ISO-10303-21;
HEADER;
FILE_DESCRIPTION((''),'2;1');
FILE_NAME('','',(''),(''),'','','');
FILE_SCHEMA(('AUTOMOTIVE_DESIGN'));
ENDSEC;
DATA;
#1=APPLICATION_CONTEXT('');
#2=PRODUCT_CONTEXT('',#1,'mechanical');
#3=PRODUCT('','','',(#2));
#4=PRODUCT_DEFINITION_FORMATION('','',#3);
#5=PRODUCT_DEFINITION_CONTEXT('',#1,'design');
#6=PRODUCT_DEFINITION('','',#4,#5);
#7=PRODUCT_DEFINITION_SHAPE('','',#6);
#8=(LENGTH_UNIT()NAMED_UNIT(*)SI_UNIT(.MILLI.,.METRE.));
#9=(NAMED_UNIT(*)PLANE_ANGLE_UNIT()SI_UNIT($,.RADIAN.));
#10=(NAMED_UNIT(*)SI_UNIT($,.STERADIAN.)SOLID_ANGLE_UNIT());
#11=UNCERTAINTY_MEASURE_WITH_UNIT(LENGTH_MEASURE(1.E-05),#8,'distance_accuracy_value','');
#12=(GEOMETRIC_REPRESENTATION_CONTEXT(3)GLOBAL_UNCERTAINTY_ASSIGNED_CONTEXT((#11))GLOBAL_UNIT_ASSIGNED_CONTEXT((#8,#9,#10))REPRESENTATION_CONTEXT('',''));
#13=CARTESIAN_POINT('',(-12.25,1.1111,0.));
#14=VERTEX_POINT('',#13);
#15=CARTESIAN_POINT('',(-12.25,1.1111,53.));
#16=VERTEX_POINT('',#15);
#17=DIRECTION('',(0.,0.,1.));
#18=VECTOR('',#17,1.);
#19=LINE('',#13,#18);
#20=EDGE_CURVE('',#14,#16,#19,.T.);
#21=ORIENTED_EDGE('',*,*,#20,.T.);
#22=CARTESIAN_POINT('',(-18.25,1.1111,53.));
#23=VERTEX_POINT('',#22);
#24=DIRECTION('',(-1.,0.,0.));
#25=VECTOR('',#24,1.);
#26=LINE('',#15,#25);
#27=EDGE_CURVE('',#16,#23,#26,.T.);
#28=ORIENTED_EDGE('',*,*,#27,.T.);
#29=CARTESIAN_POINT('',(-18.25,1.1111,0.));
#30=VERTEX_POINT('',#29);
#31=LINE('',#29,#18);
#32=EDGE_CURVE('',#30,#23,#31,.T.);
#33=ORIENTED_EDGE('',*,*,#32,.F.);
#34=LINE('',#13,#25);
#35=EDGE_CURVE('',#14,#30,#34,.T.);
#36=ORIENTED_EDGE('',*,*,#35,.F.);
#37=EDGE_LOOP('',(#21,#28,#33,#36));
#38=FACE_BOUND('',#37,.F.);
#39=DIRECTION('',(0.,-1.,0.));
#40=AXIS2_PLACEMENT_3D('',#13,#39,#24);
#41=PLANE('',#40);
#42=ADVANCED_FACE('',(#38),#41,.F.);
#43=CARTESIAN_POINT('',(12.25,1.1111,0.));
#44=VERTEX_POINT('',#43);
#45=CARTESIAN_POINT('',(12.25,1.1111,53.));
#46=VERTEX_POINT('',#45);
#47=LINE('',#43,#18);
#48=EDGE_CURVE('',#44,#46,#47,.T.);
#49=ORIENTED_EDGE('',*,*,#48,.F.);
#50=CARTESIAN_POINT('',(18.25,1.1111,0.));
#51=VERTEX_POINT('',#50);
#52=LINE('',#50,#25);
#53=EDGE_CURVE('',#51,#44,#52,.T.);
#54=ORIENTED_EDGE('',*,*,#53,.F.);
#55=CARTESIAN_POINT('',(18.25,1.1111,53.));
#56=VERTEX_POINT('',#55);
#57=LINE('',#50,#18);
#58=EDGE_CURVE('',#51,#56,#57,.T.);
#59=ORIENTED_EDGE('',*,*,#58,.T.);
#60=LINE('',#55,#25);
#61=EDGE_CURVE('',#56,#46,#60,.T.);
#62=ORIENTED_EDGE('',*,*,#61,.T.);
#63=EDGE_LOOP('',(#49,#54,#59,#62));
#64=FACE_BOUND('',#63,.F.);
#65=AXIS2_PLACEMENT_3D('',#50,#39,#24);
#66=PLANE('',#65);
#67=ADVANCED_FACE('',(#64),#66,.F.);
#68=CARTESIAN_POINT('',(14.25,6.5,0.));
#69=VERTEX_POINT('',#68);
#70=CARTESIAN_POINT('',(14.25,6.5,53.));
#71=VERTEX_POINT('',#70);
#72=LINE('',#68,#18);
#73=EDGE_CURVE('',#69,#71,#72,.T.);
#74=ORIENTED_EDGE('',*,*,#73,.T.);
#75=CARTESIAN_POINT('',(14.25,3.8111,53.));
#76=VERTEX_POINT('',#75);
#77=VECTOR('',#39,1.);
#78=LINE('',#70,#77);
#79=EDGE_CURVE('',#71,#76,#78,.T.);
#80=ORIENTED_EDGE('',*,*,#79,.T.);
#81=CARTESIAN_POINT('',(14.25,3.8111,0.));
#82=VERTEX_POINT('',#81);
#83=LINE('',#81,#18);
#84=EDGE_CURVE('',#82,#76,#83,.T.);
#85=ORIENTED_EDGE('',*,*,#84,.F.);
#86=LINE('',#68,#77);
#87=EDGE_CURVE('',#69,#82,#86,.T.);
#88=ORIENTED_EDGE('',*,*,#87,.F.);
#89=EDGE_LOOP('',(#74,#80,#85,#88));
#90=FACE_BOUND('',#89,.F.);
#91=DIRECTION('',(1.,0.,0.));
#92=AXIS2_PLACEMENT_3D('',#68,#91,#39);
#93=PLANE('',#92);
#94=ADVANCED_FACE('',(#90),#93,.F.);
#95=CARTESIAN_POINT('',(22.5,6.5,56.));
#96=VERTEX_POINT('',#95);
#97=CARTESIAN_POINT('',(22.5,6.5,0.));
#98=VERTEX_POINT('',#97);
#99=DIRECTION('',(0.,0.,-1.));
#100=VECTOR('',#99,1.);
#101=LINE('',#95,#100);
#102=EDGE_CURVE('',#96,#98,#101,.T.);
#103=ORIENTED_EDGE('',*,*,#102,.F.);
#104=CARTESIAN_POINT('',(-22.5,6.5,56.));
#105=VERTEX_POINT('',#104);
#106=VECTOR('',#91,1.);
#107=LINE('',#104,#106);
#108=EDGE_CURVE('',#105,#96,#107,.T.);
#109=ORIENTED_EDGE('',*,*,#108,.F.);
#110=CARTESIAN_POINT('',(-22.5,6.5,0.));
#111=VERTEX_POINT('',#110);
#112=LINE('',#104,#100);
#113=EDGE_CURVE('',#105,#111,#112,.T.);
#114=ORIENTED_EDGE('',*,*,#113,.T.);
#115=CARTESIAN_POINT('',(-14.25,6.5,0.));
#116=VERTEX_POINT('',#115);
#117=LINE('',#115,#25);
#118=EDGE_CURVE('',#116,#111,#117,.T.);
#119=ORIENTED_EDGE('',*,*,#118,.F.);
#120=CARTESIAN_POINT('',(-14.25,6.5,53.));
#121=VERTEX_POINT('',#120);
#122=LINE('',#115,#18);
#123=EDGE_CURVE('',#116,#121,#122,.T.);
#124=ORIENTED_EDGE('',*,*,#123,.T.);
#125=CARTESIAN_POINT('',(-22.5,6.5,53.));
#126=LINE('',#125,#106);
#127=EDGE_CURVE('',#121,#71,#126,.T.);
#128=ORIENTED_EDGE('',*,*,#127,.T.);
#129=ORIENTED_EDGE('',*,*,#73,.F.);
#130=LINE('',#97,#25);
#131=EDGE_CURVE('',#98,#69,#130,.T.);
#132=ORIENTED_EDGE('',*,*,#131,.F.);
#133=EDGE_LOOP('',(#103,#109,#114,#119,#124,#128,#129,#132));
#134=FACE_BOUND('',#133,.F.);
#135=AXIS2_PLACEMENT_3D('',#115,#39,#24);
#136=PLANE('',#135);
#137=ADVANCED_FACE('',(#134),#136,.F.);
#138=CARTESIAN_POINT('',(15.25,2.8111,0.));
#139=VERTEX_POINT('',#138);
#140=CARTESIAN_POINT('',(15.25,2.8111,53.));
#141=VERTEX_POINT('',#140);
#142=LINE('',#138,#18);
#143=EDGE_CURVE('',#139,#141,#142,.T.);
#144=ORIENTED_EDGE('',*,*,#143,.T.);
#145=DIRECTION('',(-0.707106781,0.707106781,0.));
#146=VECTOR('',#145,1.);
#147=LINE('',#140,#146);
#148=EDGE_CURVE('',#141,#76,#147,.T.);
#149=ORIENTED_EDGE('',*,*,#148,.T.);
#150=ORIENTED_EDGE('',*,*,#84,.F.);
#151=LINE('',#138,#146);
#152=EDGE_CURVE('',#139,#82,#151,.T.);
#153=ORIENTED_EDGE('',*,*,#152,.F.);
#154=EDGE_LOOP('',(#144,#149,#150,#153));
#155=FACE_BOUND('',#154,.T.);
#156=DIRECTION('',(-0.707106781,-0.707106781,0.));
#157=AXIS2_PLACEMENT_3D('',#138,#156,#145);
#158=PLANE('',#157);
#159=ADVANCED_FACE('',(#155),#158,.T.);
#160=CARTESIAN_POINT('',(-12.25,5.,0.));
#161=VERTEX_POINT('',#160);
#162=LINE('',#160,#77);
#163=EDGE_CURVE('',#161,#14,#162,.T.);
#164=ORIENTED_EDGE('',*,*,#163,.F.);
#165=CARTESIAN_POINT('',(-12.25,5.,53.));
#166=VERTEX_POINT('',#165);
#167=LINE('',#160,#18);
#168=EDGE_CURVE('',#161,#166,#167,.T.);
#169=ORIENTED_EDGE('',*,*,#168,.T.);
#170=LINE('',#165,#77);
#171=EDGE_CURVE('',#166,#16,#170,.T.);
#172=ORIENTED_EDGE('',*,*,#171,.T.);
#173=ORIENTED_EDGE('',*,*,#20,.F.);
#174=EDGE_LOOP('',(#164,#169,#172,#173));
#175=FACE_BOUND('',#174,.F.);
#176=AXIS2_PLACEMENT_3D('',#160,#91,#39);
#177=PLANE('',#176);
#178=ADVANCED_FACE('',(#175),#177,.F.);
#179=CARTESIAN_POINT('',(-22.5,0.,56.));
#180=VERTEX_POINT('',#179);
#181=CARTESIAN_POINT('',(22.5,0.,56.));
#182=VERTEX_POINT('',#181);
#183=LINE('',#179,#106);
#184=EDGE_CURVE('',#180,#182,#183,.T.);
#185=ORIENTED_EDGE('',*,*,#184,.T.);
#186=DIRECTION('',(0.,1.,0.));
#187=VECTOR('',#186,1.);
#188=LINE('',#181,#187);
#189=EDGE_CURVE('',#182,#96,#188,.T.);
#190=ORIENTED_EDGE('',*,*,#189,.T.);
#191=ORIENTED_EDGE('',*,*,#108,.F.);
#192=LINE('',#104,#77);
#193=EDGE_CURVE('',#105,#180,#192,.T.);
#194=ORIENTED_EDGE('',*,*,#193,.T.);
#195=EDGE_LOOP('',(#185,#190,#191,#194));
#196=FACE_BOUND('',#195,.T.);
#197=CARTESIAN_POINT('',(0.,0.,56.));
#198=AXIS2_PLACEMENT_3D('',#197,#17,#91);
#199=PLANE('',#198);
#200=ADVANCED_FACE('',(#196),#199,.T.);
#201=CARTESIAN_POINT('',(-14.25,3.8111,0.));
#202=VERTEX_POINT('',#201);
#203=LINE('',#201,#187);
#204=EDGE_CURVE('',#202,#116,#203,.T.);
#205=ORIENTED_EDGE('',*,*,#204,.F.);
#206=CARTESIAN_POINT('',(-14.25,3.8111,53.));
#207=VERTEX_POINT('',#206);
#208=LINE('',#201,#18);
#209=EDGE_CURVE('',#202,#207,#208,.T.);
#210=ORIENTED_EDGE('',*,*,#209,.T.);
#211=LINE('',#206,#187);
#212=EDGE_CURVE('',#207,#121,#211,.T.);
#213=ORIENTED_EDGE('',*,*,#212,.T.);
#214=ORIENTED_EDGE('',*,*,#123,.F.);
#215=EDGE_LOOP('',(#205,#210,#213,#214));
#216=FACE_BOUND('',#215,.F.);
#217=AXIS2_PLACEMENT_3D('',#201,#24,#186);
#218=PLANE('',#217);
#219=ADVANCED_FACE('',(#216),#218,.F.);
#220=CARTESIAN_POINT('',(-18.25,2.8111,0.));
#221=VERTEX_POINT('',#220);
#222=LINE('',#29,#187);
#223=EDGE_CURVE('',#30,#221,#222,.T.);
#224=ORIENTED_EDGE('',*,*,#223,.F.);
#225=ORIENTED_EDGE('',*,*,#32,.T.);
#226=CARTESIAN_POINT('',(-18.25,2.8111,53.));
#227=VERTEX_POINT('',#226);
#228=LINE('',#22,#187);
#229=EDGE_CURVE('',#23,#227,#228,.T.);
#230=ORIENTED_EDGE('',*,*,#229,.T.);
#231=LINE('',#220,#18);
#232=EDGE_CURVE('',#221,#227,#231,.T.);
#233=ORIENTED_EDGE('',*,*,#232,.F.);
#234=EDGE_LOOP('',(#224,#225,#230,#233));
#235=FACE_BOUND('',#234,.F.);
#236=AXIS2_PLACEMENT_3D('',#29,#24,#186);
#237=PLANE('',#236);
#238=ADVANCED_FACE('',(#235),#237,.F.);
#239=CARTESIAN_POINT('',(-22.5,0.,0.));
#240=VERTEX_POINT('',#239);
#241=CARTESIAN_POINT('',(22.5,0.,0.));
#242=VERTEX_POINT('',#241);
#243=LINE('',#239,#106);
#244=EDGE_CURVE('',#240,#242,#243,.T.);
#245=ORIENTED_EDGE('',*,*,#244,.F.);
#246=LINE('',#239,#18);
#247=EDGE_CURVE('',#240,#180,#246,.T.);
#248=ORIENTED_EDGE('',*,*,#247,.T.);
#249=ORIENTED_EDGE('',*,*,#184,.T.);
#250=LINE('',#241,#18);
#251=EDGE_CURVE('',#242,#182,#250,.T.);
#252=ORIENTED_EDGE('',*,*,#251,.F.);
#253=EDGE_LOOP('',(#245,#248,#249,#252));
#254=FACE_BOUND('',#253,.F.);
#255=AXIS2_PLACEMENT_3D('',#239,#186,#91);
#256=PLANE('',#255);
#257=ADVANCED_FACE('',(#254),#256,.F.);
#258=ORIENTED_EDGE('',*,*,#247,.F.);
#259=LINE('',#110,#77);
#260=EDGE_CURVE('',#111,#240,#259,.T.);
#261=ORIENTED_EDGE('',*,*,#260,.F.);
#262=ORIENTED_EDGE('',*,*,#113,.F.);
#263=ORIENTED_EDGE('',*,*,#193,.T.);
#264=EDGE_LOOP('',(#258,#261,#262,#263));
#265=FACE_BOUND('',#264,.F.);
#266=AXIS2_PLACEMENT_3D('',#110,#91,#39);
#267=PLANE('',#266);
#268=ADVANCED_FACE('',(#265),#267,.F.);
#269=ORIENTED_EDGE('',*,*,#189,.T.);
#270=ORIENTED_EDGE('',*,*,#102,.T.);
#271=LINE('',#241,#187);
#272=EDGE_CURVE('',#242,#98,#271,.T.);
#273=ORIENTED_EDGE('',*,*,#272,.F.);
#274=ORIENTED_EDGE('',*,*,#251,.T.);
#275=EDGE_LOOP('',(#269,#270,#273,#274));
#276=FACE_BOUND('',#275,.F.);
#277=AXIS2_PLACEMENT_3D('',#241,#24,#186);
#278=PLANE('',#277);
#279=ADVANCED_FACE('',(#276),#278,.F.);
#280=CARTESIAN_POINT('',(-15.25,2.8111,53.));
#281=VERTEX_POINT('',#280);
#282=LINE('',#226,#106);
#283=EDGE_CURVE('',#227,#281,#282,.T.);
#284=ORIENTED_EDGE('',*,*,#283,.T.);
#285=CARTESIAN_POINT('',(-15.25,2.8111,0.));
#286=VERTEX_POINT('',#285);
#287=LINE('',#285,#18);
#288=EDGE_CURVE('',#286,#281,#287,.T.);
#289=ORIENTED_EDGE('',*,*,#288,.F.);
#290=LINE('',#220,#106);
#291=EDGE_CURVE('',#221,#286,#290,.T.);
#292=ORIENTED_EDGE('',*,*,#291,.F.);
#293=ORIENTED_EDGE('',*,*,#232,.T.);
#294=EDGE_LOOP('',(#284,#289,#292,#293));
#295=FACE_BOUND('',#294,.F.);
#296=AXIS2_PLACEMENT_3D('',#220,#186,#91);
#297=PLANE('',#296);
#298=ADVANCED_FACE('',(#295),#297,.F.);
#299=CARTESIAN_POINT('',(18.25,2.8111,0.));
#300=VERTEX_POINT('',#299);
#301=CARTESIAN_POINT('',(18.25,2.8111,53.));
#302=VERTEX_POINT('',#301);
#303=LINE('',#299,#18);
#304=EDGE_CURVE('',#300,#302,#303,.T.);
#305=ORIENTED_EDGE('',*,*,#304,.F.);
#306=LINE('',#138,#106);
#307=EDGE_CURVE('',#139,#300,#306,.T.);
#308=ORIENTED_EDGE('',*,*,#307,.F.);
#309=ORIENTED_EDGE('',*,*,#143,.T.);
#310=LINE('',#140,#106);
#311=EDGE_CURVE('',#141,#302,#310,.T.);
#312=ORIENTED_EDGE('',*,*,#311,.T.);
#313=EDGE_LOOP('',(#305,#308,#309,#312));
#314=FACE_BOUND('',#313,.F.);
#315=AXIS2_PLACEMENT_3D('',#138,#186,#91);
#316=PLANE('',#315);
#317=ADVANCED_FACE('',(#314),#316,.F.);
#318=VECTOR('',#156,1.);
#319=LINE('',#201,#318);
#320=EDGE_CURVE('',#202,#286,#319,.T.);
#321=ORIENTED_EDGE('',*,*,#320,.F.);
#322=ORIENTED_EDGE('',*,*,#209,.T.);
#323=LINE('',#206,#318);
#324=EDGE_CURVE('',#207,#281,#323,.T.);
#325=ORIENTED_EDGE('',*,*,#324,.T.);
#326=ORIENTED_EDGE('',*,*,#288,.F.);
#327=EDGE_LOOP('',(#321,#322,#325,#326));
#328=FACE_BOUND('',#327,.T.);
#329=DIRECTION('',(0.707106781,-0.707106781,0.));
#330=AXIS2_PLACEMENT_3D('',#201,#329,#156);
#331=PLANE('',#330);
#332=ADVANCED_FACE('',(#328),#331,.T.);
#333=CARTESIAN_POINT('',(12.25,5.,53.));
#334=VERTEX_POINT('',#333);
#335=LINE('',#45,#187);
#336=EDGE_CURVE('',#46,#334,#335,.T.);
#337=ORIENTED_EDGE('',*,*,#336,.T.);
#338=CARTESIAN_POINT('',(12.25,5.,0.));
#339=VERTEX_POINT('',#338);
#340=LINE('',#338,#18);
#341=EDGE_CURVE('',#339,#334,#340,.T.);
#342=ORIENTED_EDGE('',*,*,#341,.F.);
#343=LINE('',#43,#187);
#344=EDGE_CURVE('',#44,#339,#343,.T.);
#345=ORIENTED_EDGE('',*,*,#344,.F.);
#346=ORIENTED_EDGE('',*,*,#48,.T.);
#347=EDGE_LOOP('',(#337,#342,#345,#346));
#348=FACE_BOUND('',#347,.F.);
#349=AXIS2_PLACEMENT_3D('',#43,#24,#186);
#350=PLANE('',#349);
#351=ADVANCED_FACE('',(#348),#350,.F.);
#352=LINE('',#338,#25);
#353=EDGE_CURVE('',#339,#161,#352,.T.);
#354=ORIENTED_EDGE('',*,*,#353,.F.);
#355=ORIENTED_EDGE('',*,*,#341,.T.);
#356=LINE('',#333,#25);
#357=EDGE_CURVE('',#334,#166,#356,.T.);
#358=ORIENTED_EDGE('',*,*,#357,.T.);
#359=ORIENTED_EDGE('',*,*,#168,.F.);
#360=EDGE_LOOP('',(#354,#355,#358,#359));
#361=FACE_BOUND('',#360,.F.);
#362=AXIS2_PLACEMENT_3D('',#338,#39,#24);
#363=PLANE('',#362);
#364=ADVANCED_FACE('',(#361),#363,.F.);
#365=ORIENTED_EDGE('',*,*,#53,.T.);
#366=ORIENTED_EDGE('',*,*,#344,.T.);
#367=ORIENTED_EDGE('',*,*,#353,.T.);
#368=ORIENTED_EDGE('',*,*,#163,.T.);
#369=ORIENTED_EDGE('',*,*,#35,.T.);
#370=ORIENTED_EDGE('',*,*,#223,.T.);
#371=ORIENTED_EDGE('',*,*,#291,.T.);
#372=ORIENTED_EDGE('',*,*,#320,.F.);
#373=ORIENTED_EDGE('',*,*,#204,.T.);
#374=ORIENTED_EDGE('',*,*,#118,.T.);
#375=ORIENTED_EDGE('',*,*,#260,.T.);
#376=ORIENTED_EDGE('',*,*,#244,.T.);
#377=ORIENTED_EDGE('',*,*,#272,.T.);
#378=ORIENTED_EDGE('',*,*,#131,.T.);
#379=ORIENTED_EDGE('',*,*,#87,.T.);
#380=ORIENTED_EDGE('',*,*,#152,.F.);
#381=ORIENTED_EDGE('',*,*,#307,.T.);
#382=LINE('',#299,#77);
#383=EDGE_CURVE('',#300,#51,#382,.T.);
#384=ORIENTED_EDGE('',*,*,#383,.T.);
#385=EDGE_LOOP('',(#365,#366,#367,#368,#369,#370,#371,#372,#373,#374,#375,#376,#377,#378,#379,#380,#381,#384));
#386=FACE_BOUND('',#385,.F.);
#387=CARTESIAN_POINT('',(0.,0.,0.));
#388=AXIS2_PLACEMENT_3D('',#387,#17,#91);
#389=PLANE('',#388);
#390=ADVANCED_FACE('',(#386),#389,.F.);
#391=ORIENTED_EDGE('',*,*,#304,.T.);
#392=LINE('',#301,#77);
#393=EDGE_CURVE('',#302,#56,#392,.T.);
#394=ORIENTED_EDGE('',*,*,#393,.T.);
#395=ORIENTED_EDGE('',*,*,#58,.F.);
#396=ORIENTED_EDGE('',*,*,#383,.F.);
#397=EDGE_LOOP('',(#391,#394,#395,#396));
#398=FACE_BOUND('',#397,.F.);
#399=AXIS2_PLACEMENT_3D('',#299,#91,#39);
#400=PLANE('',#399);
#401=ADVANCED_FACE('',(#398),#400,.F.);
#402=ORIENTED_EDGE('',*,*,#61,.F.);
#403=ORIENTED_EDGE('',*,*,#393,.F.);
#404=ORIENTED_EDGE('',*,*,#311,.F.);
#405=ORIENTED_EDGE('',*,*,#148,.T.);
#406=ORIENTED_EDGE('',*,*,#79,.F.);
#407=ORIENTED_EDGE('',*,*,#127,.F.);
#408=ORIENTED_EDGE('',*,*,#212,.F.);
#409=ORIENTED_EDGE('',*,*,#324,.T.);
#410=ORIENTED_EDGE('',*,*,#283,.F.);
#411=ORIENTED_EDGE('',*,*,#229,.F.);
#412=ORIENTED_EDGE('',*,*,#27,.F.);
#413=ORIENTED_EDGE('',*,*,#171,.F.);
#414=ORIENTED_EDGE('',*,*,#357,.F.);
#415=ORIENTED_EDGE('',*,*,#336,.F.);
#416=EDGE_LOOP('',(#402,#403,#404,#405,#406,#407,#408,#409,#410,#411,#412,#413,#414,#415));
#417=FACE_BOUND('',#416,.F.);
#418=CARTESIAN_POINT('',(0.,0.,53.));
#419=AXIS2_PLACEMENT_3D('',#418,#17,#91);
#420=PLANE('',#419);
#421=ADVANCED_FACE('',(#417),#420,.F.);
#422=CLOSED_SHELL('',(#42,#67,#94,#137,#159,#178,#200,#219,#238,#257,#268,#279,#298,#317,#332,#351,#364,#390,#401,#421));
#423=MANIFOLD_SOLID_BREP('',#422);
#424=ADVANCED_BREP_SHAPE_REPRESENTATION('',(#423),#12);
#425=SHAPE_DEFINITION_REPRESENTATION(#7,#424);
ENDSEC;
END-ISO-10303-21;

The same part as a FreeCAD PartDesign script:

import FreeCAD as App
import Part
import Sketcher


def add_polygon(sketch, points):
    """Adds a closed chain of lines whose ends are joined by coincident constraints."""
    first, n = sketch.GeometryCount, len(points)
    for a, b in zip(points, points[1:] + points[:1]):
        sketch.addGeometry(Part.LineSegment(App.Vector(*a, 0), App.Vector(*b, 0)), False)
    for i in range(n):
        sketch.addConstraint(Sketcher.Constraint("Coincident", first + i, 2, first + (i + 1) % n, 1))

doc = App.newDocument("Part")
params = doc.addObject("Spreadsheet::Sheet", "Params")
for row, (alias, value) in enumerate([
    ("sketch1_width", "45 mm"),
    ("sketch1_width2", "6 mm"),
    ("sketch1_height", "6.5 mm"),
    ("sketch1_height2", "1.7 mm"),
    ("pad1_length", "53 mm"),
    ("sketch2_width", "45 mm"),
    ("sketch2_height", "6.5 mm"),
    ("pad2_length", "3 mm"),
], start=1):
    params.set(f"A{row}", alias)
    params.set(f"B{row}", "=" + value)
    params.setAlias(f"B{row}", alias)

body = doc.addObject("PartDesign::Body", "Body")

# Sketch on XY plane
sketch1 = body.newObject("Sketcher::SketchObject", "Sketch")
sketch1.AttachmentSupport = (doc.getObject("XY_Plane"), [""])
sketch1.MapMode = "FlatFace"
add_polygon(sketch1, [(-22.5, 6.5), (-22.5, 0), (22.5, 0), (22.5, 6.5), (14.2, 6.5), (14.2, 3.8), (15.2, 2.8), (18.2, 2.8), (18.2, 1.1), (12.2, 1.1), (12.2, 5), (-12.2, 5), (-12.2, 1.1), (-18.2, 1.1), (-18.2, 2.8), (-15.2, 2.8), (-14.2, 3.8), (-14.2, 6.5)])  # lines 0-17
sketch1.addConstraint([
    Sketcher.Constraint("Vertical", 0),
    Sketcher.Constraint("Horizontal", 1),
    Sketcher.Constraint("Vertical", 2),
    Sketcher.Constraint("Horizontal", 3),
    Sketcher.Constraint("Vertical", 4),
    Sketcher.Constraint("Horizontal", 6),
    Sketcher.Constraint("Vertical", 7),
    Sketcher.Constraint("Horizontal", 8),
    Sketcher.Constraint("Vertical", 9),
    Sketcher.Constraint("Horizontal", 10),
    Sketcher.Constraint("Vertical", 11),
    Sketcher.Constraint("Horizontal", 12),
    Sketcher.Constraint("Vertical", 13),
    Sketcher.Constraint("Horizontal", 14),
    Sketcher.Constraint("Vertical", 16),
    Sketcher.Constraint("Horizontal", 17),
    Sketcher.Constraint("Symmetric", 0, 2, 1, 2, -1, 1),
    Sketcher.Constraint("Symmetric", 8, 2, 11, 2, -2),
    Sketcher.Constraint("Symmetric", 6, 2, 13, 2, -2),
    Sketcher.Constraint("Symmetric", 4, 2, 15, 2, -2),
    Sketcher.Constraint("Perpendicular", 5, 15),
    Sketcher.Constraint("Horizontal", 3, 2, 16, 2),
    Sketcher.Constraint("Equal", 6, 14),
    Sketcher.Constraint("DistanceX", 1, 1, 1, 2, 45.0),
    Sketcher.Constraint("DistanceX", 8, 2, 8, 1, 6.0),
    Sketcher.Constraint("DistanceY", 0, 2, 0, 1, 6.5),
    Sketcher.Constraint("DistanceY", 7, 2, 7, 1, 1.7),
    Sketcher.Constraint("DistanceY", -1, 1, 9, 2, 5.0),
    Sketcher.Constraint("DistanceX", 4, 2, 5, 2, 1.0),
    Sketcher.Constraint("DistanceX", 4, 2, 6, 2, 4.0),
    Sketcher.Constraint("DistanceX", 6, 2, 1, 2, 4.25),
    Sketcher.Constraint("DistanceY", -1, 1, 7, 2, 1.111),
])
sketch1.setExpression("Constraints[41]", "Params.sketch1_width")
sketch1.setExpression("Constraints[42]", "Params.sketch1_width2")
sketch1.setExpression("Constraints[43]", "Params.sketch1_height")
sketch1.setExpression("Constraints[44]", "Params.sketch1_height2")
pad1 = body.newObject("PartDesign::Pad", "Pad")
pad1.Profile = sketch1
pad1.setExpression("Length", "Params.pad1_length")

# Sketch on XY plane
sketch2 = body.newObject("Sketcher::SketchObject", "Sketch001")
sketch2.AttachmentSupport = (doc.getObject("XY_Plane"), [""])
sketch2.MapMode = "FlatFace"
sketch2.AttachmentOffset = App.Placement(App.Vector(0, 0, 53), App.Rotation())
add_polygon(sketch2, [(-22, 6), (-22, 0), (22, 0), (22, 6)])  # lines 0-3
sketch2.addConstraint([
    Sketcher.Constraint("Vertical", 0),
    Sketcher.Constraint("Horizontal", 1),
    Sketcher.Constraint("Vertical", 2),
    Sketcher.Constraint("Horizontal", 3),
    Sketcher.Constraint("Symmetric", 0, 2, 1, 2, -1, 1),
    Sketcher.Constraint("DistanceX", 1, 1, 1, 2, 45.0),
    Sketcher.Constraint("DistanceY", 0, 2, 0, 1, 6.5),
])
sketch2.setExpression("Constraints[9]", "Params.sketch2_width")
sketch2.setExpression("Constraints[10]", "Params.sketch2_height")
pad2 = body.newObject("PartDesign::Pad", "Pad001")
pad2.Profile = sketch2
pad2.setExpression("Length", "Params.pad2_length")

doc.recompute()
